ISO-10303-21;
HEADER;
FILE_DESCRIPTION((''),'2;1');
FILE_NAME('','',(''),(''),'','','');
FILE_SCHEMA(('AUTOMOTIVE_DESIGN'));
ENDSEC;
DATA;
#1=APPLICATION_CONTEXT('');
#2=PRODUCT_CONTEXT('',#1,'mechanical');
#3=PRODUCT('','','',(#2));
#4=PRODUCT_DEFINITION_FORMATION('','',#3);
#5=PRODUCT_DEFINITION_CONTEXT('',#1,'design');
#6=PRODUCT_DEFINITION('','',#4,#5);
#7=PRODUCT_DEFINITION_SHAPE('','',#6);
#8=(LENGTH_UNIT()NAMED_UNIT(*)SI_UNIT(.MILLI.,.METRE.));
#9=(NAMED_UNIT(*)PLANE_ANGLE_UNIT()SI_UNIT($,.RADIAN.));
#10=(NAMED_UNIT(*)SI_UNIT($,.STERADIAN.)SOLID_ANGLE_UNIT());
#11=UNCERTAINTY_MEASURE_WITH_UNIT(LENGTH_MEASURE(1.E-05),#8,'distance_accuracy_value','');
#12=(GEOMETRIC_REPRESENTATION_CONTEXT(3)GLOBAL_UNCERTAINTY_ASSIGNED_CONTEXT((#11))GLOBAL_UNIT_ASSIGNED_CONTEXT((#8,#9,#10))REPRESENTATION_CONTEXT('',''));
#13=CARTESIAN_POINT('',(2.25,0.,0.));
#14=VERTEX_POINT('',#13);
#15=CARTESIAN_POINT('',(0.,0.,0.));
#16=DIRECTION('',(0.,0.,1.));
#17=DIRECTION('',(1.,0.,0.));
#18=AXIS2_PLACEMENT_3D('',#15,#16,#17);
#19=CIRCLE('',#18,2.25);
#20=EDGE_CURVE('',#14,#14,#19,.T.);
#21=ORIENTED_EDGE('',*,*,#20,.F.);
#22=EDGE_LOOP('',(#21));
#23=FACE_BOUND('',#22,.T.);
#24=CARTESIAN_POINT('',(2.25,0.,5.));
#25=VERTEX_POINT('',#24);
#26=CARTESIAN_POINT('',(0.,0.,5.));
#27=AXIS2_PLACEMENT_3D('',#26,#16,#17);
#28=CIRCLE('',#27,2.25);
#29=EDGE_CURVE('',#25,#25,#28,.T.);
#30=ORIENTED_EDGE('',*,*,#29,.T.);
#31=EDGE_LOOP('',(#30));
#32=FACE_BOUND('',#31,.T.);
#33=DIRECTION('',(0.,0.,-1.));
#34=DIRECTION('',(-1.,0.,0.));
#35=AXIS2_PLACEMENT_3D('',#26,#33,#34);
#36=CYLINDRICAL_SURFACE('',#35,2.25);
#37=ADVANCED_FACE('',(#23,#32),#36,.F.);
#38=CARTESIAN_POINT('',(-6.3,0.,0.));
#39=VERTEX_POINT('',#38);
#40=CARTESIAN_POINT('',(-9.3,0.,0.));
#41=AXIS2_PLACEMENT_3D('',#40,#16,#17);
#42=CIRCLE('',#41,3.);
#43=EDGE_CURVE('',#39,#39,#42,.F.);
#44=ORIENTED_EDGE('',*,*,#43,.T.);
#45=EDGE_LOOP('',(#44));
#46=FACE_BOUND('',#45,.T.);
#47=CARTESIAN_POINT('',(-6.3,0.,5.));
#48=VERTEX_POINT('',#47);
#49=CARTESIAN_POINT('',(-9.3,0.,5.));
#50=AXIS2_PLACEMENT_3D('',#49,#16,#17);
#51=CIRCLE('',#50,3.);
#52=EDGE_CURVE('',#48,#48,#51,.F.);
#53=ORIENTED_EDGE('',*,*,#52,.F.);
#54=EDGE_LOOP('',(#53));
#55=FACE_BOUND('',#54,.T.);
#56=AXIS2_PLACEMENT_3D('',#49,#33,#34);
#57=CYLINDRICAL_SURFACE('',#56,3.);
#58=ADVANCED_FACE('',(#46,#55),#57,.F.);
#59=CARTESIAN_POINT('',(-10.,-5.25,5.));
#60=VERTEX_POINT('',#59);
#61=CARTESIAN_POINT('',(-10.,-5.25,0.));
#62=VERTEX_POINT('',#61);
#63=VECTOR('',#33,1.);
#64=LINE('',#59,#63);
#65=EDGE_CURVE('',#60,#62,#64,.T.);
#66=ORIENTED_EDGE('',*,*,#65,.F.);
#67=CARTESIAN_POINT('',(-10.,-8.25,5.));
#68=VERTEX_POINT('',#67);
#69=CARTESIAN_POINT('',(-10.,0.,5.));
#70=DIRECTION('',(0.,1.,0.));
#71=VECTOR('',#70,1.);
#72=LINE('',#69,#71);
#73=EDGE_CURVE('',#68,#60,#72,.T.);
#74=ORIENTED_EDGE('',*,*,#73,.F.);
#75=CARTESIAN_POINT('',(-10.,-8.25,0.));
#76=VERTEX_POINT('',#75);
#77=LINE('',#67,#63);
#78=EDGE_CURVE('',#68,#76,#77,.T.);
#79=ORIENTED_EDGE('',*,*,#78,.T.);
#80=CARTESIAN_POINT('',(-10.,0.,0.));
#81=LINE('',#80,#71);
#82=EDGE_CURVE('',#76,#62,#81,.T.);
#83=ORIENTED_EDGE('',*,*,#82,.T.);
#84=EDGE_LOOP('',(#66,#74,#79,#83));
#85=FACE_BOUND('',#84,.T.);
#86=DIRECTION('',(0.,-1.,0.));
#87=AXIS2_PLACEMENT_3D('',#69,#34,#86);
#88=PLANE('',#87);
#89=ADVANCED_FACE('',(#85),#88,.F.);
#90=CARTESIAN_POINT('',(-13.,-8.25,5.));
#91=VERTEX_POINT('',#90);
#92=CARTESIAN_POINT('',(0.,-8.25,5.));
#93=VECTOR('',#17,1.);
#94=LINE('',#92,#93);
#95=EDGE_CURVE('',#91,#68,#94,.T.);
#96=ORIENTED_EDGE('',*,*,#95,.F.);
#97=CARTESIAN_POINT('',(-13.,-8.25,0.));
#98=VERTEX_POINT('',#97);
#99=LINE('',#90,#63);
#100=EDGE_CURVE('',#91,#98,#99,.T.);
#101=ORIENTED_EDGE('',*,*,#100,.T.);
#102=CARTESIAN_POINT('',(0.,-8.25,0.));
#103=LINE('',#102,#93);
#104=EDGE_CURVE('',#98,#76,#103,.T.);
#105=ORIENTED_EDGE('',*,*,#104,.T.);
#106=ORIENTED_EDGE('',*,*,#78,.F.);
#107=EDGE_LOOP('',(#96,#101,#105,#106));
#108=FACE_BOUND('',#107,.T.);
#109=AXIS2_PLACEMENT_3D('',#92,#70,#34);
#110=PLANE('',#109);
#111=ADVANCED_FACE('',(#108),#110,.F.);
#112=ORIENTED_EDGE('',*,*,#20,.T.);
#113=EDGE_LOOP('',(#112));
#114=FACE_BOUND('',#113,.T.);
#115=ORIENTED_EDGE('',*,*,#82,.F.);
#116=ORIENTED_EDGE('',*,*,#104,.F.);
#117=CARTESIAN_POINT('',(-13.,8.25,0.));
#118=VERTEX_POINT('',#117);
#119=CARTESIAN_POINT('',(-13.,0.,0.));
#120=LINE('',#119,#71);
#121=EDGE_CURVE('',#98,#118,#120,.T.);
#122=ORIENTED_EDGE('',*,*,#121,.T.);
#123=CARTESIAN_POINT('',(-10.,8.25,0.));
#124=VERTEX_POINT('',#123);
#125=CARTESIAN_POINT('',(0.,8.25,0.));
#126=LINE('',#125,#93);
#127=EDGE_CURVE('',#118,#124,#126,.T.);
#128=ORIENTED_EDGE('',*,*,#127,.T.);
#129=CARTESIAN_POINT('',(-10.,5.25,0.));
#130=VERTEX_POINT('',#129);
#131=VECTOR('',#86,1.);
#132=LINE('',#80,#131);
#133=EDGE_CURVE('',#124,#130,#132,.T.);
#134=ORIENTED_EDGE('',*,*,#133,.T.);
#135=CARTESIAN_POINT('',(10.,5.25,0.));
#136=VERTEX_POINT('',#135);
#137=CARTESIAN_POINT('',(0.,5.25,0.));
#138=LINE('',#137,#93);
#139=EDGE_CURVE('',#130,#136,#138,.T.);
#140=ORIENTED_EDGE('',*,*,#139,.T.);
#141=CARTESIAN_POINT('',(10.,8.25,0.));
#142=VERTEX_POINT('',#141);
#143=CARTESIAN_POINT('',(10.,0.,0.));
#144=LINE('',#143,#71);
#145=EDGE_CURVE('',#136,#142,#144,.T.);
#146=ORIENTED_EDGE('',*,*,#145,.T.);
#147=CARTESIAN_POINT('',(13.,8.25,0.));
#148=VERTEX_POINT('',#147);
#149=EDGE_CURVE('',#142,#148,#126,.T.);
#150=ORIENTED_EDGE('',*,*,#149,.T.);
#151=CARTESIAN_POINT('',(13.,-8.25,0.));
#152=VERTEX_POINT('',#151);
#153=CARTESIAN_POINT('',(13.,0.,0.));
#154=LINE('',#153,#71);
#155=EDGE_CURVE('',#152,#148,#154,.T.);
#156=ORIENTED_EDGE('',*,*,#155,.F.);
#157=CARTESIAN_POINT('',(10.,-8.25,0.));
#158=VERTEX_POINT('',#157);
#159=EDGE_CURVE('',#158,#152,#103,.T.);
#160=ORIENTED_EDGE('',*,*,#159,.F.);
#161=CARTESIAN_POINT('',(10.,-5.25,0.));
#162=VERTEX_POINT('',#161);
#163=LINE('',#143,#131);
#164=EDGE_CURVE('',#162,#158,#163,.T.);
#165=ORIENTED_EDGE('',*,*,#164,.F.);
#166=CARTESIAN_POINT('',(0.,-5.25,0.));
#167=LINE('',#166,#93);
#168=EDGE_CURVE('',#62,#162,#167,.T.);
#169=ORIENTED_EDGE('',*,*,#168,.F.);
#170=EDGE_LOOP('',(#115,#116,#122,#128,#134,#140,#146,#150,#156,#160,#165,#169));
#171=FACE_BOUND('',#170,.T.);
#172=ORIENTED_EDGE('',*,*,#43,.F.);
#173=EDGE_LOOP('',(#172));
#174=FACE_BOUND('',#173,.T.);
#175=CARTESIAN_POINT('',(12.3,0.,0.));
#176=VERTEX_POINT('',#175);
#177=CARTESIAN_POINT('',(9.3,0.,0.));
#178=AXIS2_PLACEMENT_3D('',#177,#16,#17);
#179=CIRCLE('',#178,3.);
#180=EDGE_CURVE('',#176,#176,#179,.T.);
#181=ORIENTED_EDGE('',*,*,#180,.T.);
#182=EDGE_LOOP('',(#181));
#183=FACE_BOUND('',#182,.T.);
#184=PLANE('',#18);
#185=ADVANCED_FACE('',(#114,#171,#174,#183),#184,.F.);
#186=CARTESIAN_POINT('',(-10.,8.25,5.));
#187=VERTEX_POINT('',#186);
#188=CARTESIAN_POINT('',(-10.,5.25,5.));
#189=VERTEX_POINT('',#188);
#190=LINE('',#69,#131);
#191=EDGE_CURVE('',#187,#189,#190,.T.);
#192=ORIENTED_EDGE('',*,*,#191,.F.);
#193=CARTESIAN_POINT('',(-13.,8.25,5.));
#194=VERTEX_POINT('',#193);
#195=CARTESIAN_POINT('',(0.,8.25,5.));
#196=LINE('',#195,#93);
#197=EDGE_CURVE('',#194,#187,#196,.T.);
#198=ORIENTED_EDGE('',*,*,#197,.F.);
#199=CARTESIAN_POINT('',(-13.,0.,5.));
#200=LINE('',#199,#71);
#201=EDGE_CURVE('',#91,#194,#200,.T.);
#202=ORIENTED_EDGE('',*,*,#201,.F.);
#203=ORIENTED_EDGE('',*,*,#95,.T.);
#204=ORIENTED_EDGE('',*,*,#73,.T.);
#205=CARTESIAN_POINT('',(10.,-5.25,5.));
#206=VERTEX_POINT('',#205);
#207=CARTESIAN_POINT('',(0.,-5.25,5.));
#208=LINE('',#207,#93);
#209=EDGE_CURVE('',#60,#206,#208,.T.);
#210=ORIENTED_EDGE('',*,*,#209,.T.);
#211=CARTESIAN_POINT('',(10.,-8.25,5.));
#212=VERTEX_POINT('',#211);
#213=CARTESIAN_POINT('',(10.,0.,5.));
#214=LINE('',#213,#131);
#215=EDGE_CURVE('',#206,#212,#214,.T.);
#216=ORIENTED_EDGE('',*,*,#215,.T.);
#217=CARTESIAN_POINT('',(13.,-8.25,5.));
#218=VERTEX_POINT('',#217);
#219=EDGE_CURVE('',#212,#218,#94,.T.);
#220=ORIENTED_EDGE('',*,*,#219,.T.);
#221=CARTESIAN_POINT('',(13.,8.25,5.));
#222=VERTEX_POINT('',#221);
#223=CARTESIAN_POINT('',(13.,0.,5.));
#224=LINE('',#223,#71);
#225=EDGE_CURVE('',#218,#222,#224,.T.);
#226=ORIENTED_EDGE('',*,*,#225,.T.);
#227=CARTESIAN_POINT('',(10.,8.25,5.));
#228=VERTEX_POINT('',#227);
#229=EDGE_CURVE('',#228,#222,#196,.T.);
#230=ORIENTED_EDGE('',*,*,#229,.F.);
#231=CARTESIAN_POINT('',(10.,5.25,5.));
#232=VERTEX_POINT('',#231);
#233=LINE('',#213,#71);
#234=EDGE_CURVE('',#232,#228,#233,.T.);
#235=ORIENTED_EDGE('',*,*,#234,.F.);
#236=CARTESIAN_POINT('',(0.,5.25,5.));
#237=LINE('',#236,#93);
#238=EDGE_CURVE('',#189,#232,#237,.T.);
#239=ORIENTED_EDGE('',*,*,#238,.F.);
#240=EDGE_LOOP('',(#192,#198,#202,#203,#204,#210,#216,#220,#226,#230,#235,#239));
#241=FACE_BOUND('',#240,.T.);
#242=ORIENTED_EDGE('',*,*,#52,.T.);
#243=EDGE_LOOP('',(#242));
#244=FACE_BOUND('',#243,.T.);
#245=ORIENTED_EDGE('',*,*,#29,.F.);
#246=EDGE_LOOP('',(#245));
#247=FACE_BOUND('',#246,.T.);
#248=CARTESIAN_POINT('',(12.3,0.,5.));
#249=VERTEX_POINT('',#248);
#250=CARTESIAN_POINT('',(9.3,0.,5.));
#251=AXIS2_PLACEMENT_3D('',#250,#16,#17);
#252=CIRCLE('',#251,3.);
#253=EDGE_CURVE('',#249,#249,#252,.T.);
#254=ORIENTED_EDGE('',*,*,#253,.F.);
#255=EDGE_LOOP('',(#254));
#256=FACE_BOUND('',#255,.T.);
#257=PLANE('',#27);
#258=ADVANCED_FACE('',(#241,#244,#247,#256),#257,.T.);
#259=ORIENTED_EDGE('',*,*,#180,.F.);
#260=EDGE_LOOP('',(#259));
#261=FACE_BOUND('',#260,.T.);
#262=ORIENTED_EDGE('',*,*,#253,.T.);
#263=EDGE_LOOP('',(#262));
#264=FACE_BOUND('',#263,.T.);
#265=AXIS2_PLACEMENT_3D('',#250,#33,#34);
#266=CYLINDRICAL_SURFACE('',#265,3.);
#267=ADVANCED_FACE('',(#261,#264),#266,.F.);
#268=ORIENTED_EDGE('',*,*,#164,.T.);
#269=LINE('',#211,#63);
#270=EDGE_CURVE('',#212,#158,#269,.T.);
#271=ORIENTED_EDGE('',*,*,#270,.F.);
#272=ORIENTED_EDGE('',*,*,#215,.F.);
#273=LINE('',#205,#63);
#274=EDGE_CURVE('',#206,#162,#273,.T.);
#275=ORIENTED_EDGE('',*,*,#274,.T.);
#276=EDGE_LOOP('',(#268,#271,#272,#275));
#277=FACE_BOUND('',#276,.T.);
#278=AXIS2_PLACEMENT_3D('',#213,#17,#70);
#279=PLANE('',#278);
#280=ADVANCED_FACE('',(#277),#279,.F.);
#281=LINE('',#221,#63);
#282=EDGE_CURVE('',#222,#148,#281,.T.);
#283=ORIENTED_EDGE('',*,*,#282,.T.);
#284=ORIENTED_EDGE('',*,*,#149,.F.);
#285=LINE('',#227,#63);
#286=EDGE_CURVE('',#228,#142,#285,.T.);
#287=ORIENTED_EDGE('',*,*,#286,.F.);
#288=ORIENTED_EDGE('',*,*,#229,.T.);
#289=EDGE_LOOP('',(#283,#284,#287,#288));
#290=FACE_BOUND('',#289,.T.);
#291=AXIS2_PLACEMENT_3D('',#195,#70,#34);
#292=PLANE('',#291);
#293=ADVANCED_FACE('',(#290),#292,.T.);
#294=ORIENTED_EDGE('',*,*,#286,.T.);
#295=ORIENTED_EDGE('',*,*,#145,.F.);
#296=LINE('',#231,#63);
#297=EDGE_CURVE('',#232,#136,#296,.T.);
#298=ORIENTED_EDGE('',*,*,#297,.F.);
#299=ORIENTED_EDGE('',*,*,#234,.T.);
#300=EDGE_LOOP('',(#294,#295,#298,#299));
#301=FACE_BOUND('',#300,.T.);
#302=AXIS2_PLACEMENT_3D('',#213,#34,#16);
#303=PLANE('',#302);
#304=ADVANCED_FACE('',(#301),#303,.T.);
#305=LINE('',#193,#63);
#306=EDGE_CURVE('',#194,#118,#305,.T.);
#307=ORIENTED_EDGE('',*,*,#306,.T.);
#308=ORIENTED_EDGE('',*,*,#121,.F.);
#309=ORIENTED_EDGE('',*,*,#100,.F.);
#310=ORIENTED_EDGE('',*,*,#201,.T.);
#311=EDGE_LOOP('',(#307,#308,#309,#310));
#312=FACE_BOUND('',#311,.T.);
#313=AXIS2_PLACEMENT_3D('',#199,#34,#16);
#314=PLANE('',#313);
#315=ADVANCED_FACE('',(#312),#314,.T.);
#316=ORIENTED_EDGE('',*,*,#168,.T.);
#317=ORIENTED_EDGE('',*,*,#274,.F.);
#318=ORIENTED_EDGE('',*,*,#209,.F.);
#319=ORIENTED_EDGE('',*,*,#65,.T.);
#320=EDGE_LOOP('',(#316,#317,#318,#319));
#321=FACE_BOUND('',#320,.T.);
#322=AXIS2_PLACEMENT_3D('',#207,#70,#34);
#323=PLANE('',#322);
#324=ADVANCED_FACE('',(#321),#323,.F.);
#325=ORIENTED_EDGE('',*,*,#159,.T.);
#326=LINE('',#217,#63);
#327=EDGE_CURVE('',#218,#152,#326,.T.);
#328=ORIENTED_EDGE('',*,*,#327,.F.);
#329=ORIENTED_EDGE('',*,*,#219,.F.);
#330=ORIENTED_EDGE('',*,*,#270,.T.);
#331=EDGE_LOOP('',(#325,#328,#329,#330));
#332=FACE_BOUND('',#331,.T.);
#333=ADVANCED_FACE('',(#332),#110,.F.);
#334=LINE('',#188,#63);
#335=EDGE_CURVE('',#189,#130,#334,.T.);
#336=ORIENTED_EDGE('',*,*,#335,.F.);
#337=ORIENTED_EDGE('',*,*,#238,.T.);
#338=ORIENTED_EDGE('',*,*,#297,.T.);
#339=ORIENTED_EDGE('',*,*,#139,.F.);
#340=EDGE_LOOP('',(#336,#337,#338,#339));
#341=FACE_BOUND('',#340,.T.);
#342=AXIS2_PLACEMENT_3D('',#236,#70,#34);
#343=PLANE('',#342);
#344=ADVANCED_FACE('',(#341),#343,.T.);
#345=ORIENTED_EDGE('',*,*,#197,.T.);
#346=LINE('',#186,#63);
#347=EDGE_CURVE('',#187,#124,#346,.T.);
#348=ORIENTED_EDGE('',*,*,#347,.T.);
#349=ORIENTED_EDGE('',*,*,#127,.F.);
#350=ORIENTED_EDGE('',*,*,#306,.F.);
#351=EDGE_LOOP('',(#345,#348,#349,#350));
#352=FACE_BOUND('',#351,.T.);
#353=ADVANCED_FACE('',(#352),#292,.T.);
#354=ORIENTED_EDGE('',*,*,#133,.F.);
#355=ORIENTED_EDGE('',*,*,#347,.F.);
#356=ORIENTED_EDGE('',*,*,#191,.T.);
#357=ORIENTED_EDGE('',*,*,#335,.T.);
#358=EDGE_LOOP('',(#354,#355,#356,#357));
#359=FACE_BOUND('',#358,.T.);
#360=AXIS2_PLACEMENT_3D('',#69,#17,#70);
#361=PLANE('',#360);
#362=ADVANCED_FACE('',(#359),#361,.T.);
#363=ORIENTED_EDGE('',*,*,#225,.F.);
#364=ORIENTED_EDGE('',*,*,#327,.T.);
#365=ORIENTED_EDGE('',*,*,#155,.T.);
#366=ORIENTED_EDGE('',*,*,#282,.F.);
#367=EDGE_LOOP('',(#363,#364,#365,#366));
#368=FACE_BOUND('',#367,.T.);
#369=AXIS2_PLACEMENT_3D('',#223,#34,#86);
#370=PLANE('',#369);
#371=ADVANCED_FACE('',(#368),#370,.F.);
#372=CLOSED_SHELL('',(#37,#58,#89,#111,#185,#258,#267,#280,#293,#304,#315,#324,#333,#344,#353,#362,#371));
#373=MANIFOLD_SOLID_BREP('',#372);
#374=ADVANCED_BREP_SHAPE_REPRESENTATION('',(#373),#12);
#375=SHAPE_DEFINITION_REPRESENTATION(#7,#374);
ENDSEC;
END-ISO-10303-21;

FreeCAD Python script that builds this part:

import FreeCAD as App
import Part
import Sketcher
Q = App.Units.Quantity


def add_polygon(sketch, points):
    """Adds a closed chain of lines whose ends are joined by coincident constraints."""
    first, n = sketch.GeometryCount, len(points)
    for a, b in zip(points, points[1:] + points[:1]):
        sketch.addGeometry(Part.LineSegment(App.Vector(*a, 0), App.Vector(*b, 0)), False)
    for i in range(n):
        sketch.addConstraint(Sketcher.Constraint("Coincident", first + i, 2, first + (i + 1) % n, 1))

doc = App.newDocument("Part")
body = doc.addObject("PartDesign::Body", "Body")

sketch1 = body.newObject("Sketcher::SketchObject", "Sketch")
sketch1.AttachmentSupport = (doc.getObject("XY_Plane"), [""])
sketch1.MapMode = "FlatFace"
add_polygon(sketch1, [(-13, 8.25), (-13, -8.25), (-10, -8.25), (-10, -5.25), (10, -5.25), (10, -8.25), (13, -8.25), (13, 8.25), (10, 8.25), (10, 5.25), (-10, 5.25), (-10, 8.25)])
sketch1.addGeometry(Part.Circle(App.Vector(-9.3, 0, 0), App.Vector(0, 0, 1), 3), False)
sketch1.addGeometry(Part.Circle(App.Vector(0, 0, 0), App.Vector(0, 0, 1), 2.25), False)
sketch1.addGeometry(Part.Circle(App.Vector(9.3, 0, 0), App.Vector(0, 0, 1), 3), False)
sketch1.addConstraint(Sketcher.Constraint("Vertical", 0))
sketch1.addConstraint(Sketcher.Constraint("Horizontal", 1))
sketch1.addConstraint(Sketcher.Constraint("Vertical", 2))
sketch1.addConstraint(Sketcher.Constraint("Horizontal", 3))
sketch1.addConstraint(Sketcher.Constraint("Vertical", 4))
sketch1.addConstraint(Sketcher.Constraint("Horizontal", 5))
sketch1.addConstraint(Sketcher.Constraint("Vertical", 6))
sketch1.addConstraint(Sketcher.Constraint("Horizontal", 7))
sketch1.addConstraint(Sketcher.Constraint("Vertical", 8))
sketch1.addConstraint(Sketcher.Constraint("Horizontal", 9))
sketch1.addConstraint(Sketcher.Constraint("Vertical", 10))
sketch1.addConstraint(Sketcher.Constraint("Horizontal", 11))
sketch1.addConstraint(Sketcher.Constraint("Coincident", 13, 3, -1, 1))
sketch1.addConstraint(Sketcher.Constraint("Equal", 12, 14))
sketch1.addConstraint(Sketcher.Constraint("Symmetric", 12, 3, 14, 3, -1, 1))
sketch1.addConstraint(Sketcher.Constraint("Symmetric", 0, 2, 6, 2, -1, 1))
sketch1.addConstraint(Sketcher.Constraint("Symmetric", 2, 2, 8, 2, -1, 1))
sketch1.addConstraint(Sketcher.Constraint("Symmetric", 4, 2, 10, 2, -1, 1))
sketch1.addConstraint(Sketcher.Constraint("Symmetric", 1, 2, 4, 2, -2))
sketch1.addConstraint(Sketcher.Constraint("PointOnObject", 12, 3, -1))
sketch1.addConstraint(Sketcher.Constraint("Equal", 11, 2))
sketch1.addConstraint(Sketcher.Constraint("Diameter", 12, Q("6 mm")))
sketch1.addConstraint(Sketcher.Constraint("Diameter", 13, Q("4.5 mm")))
sketch1.addConstraint(Sketcher.Constraint("DistanceX", 1, 1, 1, 2, Q("3 mm")))
sketch1.addConstraint(Sketcher.Constraint("DistanceX", 3, 1, 3, 2, Q("20 mm")))
sketch1.addConstraint(Sketcher.Constraint("DistanceY", 0, 2, 0, 1, Q("16.5 mm")))
sketch1.addConstraint(Sketcher.Constraint("DistanceX", 12, 3, -1, 1, Q("9.3 mm")))
pad1 = body.newObject("PartDesign::Pad", "Pad")
pad1.Profile = sketch1
pad1.Length = 5

doc.recompute()
